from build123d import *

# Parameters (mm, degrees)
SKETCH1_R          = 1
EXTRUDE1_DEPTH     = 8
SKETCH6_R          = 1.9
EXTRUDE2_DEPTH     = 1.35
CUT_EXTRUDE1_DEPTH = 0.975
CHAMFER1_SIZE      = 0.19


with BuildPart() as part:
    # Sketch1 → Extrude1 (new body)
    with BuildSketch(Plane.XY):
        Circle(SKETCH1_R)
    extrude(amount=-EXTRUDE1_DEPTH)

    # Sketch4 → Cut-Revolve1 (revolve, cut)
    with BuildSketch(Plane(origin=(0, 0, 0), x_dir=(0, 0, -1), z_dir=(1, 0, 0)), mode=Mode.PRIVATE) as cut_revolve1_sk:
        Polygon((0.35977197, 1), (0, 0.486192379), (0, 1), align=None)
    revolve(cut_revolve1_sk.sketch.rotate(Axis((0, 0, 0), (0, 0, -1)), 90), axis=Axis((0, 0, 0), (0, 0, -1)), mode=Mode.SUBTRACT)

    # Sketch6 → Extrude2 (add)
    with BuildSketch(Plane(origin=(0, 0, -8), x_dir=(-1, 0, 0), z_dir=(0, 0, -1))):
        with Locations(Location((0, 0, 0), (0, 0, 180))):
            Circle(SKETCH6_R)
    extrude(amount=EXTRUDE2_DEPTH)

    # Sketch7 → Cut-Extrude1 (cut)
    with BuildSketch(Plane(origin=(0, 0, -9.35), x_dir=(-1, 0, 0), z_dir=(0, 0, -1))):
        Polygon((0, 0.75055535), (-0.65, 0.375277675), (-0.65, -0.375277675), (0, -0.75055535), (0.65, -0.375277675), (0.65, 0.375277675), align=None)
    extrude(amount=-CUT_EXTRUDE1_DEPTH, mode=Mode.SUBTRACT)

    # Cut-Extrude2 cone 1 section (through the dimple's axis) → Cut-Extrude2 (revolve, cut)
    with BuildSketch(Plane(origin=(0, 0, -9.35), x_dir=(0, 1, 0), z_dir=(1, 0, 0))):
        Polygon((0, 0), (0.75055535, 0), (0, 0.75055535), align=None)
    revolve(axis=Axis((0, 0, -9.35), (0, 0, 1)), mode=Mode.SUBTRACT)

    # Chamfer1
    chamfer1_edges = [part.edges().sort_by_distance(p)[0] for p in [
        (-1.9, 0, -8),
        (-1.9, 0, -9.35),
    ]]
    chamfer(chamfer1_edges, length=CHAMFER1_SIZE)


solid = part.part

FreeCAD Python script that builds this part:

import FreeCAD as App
import Part
import Sketcher
from FreeCAD import Vector
Q = App.Units.Quantity


def edges_at(feature, points):
    """Names of the edges that pass closest to the given points."""
    edges = feature.Shape.Edges
    near = lambda p: min(range(len(edges)), key=lambda i: edges[i].distToShape(Part.Vertex(*p))[0])
    return sorted({f"Edge{near(p) + 1}" for p in points})


def add_polygon(sketch, points):
    """Adds a closed chain of lines whose ends are joined by coincident constraints."""
    first, n = sketch.GeometryCount, len(points)
    for a, b in zip(points, points[1:] + points[:1]):
        sketch.addGeometry(Part.LineSegment(App.Vector(*a, 0), App.Vector(*b, 0)), False)
    for i in range(n):
        sketch.addConstraint(Sketcher.Constraint("Coincident", first + i, 2, first + (i + 1) % n, 1))

doc = App.newDocument("Part")
body = doc.addObject("PartDesign::Body", "Body")

# Sketch on XY plane
sketch1 = body.newObject("Sketcher::SketchObject", "Sketch")
sketch1.AttachmentSupport = (doc.getObject("XY_Plane"), [""])
sketch1.MapMode = "FlatFace"
sketch1.addGeometry(Part.Circle(Vector(0, 0, 0), Vector(0, 0, 1), 1), False)
sketch1.addConstraint(Sketcher.Constraint("Coincident", 0, 3, -1, 1))
sketch1.addConstraint(Sketcher.Constraint("Diameter", 0, 2.0))
pad1 = body.newObject("PartDesign::Pad", "Pad")
pad1.Profile = sketch1
pad1.Length = 8
pad1.Reversed = True

# Sketch on YZ plane
sketch2 = body.newObject("Sketcher::SketchObject", "Sketch001")
sketch2.AttachmentSupport = (doc.getObject("YZ_Plane"), [""])
sketch2.MapMode = "FlatFace"
add_polygon(sketch2, [(0.49, 0), (1, -0.36), (1, 0)])  # lines 0-2
sketch2.addConstraint(Sketcher.Constraint("Vertical", 1))
sketch2.addConstraint(Sketcher.Constraint("Horizontal", 2))
sketch2.addConstraint(Sketcher.Constraint("PointOnObject", 1, 2, -1))
sketch2.addConstraint(Sketcher.Constraint("Angle", 0, Q("-35 deg")))
sketch2.addConstraint(Sketcher.Constraint("DistanceX", -1, 1, 0, 2, 1.0))
sketch2.addConstraint(Sketcher.Constraint("DistanceY", 1, 1, 1, 2, 0.359772))
groove = body.newObject("PartDesign::Groove", "Groove")
groove.Profile = sketch2
groove.ReferenceAxis = (sketch2, ["V_Axis"])
groove.Angle = 360

# Sketch on XY plane
sketch3 = body.newObject("Sketcher::SketchObject", "Sketch002")
sketch3.AttachmentSupport = (doc.getObject("XY_Plane"), [""])
sketch3.MapMode = "FlatFace"
sketch3.AttachmentOffset = App.Placement(Vector(0, 0, -8), App.Rotation())
sketch3.addGeometry(Part.Circle(Vector(0, 0, 0), Vector(0, 0, 1), 1.9), False)
sketch3.addConstraint(Sketcher.Constraint("Coincident", 0, 3, -1, 1))
sketch3.addConstraint(Sketcher.Constraint("Diameter", 0, 3.8))
pad2 = body.newObject("PartDesign::Pad", "Pad001")
pad2.Profile = sketch3
pad2.Length = 1.35
pad2.Reversed = True

# Sketch on XY plane
sketch4 = body.newObject("Sketcher::SketchObject", "Sketch003")
sketch4.AttachmentSupport = (doc.getObject("XY_Plane"), [""])
sketch4.MapMode = "FlatFace"
sketch4.AttachmentOffset = App.Placement(Vector(0, 0, -9.35), App.Rotation())
add_polygon(sketch4, [(0, 0.8), (0.7, 0.4), (0.7, -0.4), (0, -0.8), (-0.7, -0.4), (-0.7, 0.4)])  # lines 0-5
sketch4.addConstraint(Sketcher.Constraint("Vertical", 1))
sketch4.addConstraint(Sketcher.Constraint("Vertical", 4))
sketch4.addConstraint(Sketcher.Constraint("Symmetric", 0, 2, 3, 2, -1, 1))
sketch4.addConstraint(Sketcher.Constraint("Symmetric", 2, 2, 5, 2, -1, 1))
sketch4.addConstraint(Sketcher.Constraint("PointOnObject", 2, 2, -2))
sketch4.addConstraint(Sketcher.Constraint("Parallel", 2, 5))
sketch4.addConstraint(Sketcher.Constraint("Horizontal", 1, 2, 3, 2))
sketch4.addConstraint(Sketcher.Constraint("Angle", 0, Q("-30 deg")))
sketch4.addConstraint(Sketcher.Constraint("DistanceX", 3, 2, 1, 2, 1.3))
sketch4.addConstraint(Sketcher.Constraint("DistanceY", 1, 2, 1, 1, 0.750555))
pocket1 = body.newObject("PartDesign::Pocket", "Pocket")
pocket1.Profile = sketch4
pocket1.Length = 0.975
pocket1.Reversed = True

# Sketch on YZ plane
sketch5 = body.newObject("Sketcher::SketchObject", "Sketch004")
sketch5.AttachmentSupport = (doc.getObject("YZ_Plane"), [""])
sketch5.MapMode = "FlatFace"
add_polygon(sketch5, [(0, -9.3), (0.8, -9.3), (0, -8.6)])  # lines 0-2
sketch5.addConstraint(Sketcher.Constraint("Horizontal", 0))
sketch5.addConstraint(Sketcher.Constraint("Vertical", 2))
sketch5.addConstraint(Sketcher.Constraint("PointOnObject", 1, 2, -2))
sketch5.addConstraint(Sketcher.Constraint("Equal", 0, 2))
sketch5.addConstraint(Sketcher.Constraint("DistanceY", 0, 2, -1, 1, 9.35))
sketch5.addConstraint(Sketcher.Constraint("DistanceX", 0, 1, 0, 2, 0.750555))
groove2 = body.newObject("PartDesign::Groove", "Groove001")
groove2.Profile = sketch5
groove2.ReferenceAxis = (sketch5, ["V_Axis"])
groove2.Angle = 360
doc.recompute()

chamfer = body.newObject("PartDesign::Chamfer", "Chamfer")
chamfer.Base = (groove2, edges_at(groove2, [(-1.9, 0, -8), (-1.9, 0, -9.35)]))
chamfer.Size = 0.19

doc.recompute()
